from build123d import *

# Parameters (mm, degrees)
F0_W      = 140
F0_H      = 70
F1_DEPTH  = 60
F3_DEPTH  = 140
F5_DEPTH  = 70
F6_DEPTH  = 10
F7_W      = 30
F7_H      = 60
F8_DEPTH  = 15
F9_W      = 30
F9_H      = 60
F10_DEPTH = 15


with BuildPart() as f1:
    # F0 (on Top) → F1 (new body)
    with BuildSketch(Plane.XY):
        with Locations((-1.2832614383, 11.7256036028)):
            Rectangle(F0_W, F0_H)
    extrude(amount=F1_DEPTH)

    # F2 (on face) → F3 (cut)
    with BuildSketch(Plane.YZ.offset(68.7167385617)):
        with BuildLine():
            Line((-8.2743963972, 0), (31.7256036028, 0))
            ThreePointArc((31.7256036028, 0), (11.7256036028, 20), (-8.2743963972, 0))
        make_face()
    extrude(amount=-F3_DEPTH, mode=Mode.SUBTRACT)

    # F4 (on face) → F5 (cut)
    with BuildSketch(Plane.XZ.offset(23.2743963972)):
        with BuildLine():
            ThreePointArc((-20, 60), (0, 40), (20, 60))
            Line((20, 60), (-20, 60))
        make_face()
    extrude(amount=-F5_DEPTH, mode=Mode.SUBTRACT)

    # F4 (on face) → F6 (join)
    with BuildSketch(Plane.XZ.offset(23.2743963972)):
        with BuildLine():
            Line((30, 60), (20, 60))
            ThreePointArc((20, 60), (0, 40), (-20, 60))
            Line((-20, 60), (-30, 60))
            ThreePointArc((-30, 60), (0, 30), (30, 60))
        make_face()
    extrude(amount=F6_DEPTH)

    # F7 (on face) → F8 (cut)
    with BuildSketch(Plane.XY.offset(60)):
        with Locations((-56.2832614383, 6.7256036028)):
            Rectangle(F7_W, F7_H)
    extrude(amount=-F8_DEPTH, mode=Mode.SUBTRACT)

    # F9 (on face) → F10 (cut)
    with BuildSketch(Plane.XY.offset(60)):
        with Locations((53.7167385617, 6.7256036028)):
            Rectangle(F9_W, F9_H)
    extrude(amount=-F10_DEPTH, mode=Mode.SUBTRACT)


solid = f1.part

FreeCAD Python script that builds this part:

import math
import FreeCAD as App
import Part
import Sketcher
from FreeCAD import Vector

doc = App.newDocument("Part")
body = doc.addObject("PartDesign::Body", "Body")

# Sketch on XY plane
sketch1 = body.newObject("Sketcher::SketchObject", "Sketch")
sketch1.AttachmentSupport = (doc.getObject("XY_Plane"), [""])
sketch1.MapMode = "FlatFace"
sketch1.addGeometry(Part.LineSegment(Vector(-71, 47, 0), Vector(-71, -23, 0)), False)
sketch1.addGeometry(Part.LineSegment(Vector(-71, -23, 0), Vector(69, -23, 0)), False)
sketch1.addGeometry(Part.LineSegment(Vector(69, -23, 0), Vector(69, 47, 0)), False)
sketch1.addGeometry(Part.LineSegment(Vector(69, 47, 0), Vector(-71, 47, 0)), False)
sketch1.addConstraint(Sketcher.Constraint("Coincident", 0, 2, 1, 1))
sketch1.addConstraint(Sketcher.Constraint("Coincident", 1, 2, 2, 1))
sketch1.addConstraint(Sketcher.Constraint("Coincident", 2, 2, 3, 1))
sketch1.addConstraint(Sketcher.Constraint("Coincident", 3, 2, 0, 1))
sketch1.addConstraint(Sketcher.Constraint("Vertical", 0))
sketch1.addConstraint(Sketcher.Constraint("Horizontal", 1))
sketch1.addConstraint(Sketcher.Constraint("Vertical", 2))
sketch1.addConstraint(Sketcher.Constraint("Horizontal", 3))
sketch1.addConstraint(Sketcher.Constraint("DistanceX", 1, 1, 1, 2, 140.0))
sketch1.addConstraint(Sketcher.Constraint("DistanceY", 0, 2, 0, 1, 70.0))
sketch1.addConstraint(Sketcher.Constraint("DistanceX", 0, 2, -1, 1, 71.283261))
sketch1.addConstraint(Sketcher.Constraint("DistanceY", 0, 2, -1, 1, 23.274396))
pad1 = body.newObject("PartDesign::Pad", "Pad")
pad1.Profile = sketch1
pad1.Length = 60

# Sketch on YZ plane
sketch2 = body.newObject("Sketcher::SketchObject", "Sketch001")
sketch2.AttachmentSupport = (doc.getObject("YZ_Plane"), [""])
sketch2.MapMode = "FlatFace"
sketch2.AttachmentOffset = App.Placement(Vector(0, 0, 68.716739), App.Rotation())
sketch2.addGeometry(Part.LineSegment(Vector(-8, 0, 0), Vector(32, 0, 0)), False)
sketch2.addGeometry(Part.ArcOfCircle(Part.Circle(Vector(12, 0, 0), Vector(0, 0, 1), 20), math.radians(0), math.radians(180)), False)
sketch2.addConstraint(Sketcher.Constraint("Coincident", 0, 1, 1, 2))
sketch2.addConstraint(Sketcher.Constraint("Coincident", 1, 1, 0, 2))
sketch2.addConstraint(Sketcher.Constraint("Horizontal", 0))
sketch2.addConstraint(Sketcher.Constraint("PointOnObject", 1, 3, -1))
sketch2.addConstraint(Sketcher.Constraint("PointOnObject", 0, 1, -1))
sketch2.addConstraint(Sketcher.Constraint("Radius", 1, 20.0))
sketch2.addConstraint(Sketcher.Constraint("DistanceX", -1, 1, 1, 3, 11.725604))
pocket1 = body.newObject("PartDesign::Pocket", "Pocket")
pocket1.Profile = sketch2
pocket1.Length = 140

# Sketch on XZ plane
sketch3 = body.newObject("Sketcher::SketchObject", "Sketch002")
sketch3.AttachmentSupport = (doc.getObject("XZ_Plane"), [""])
sketch3.MapMode = "FlatFace"
sketch3.AttachmentOffset = App.Placement(Vector(0, 0, 23.274396), App.Rotation())
sketch3.addGeometry(Part.ArcOfCircle(Part.Circle(Vector(0, 60, 0), Vector(0, 0, 1), 20), math.radians(180), math.radians(360)), False)
sketch3.addGeometry(Part.LineSegment(Vector(20, 60, 0), Vector(-20, 60, 0)), False)
sketch3.addConstraint(Sketcher.Constraint("Coincident", 0, 1, 1, 2))
sketch3.addConstraint(Sketcher.Constraint("Coincident", 1, 1, 0, 2))
sketch3.addConstraint(Sketcher.Constraint("Horizontal", 1))
sketch3.addConstraint(Sketcher.Constraint("PointOnObject", 0, 3, -2))
sketch3.addConstraint(Sketcher.Constraint("Radius", 0, 20.0))
sketch3.addConstraint(Sketcher.Constraint("DistanceY", -1, 1, 0, 3, 60.0))
sketch3.addConstraint(Sketcher.Constraint("DistanceY", -1, 1, 0, 1, 60.0))
pocket2 = body.newObject("PartDesign::Pocket", "Pocket001")
pocket2.Profile = sketch3
pocket2.Length = 70

# Sketch on XZ plane
sketch4 = body.newObject("Sketcher::SketchObject", "Sketch003")
sketch4.AttachmentSupport = (doc.getObject("XZ_Plane"), [""])
sketch4.MapMode = "FlatFace"
sketch4.AttachmentOffset = App.Placement(Vector(0, 0, 23.274396), App.Rotation())
sketch4.addGeometry(Part.LineSegment(Vector(30, 60, 0), Vector(20, 60, 0)), False)
sketch4.addGeometry(Part.ArcOfCircle(Part.Circle(Vector(0, 60, 0), Vector(0, 0, 1), 20), math.radians(180), math.radians(360)), False)
sketch4.addGeometry(Part.LineSegment(Vector(-20, 60, 0), Vector(-30, 60, 0)), False)
sketch4.addGeometry(Part.ArcOfCircle(Part.Circle(Vector(0, 60, 0), Vector(0, 0, 1), 30), math.radians(180), math.radians(360)), False)
sketch4.addConstraint(Sketcher.Constraint("Coincident", 0, 2, 1, 2))
sketch4.addConstraint(Sketcher.Constraint("Coincident", 1, 1, 2, 1))
sketch4.addConstraint(Sketcher.Constraint("Coincident", 2, 2, 3, 1))
sketch4.addConstraint(Sketcher.Constraint("Coincident", 3, 2, 0, 1))
sketch4.addConstraint(Sketcher.Constraint("Horizontal", 0))
sketch4.addConstraint(Sketcher.Constraint("Horizontal", 2))
sketch4.addConstraint(Sketcher.Constraint("Coincident", 3, 3, 1, 3))
sketch4.addConstraint(Sketcher.Constraint("Symmetric", 0, 2, 1, 1, -2))
sketch4.addConstraint(Sketcher.Constraint("Horizontal", 3, 3, 0, 2))
sketch4.addConstraint(Sketcher.Constraint("Radius", 1, 20.0))
sketch4.addConstraint(Sketcher.Constraint("Radius", 3, 30.0))
sketch4.addConstraint(Sketcher.Constraint("DistanceY", -1, 1, 1, 3, 60.0))
pad2 = body.newObject("PartDesign::Pad", "Pad001")
pad2.Profile = sketch4
pad2.Length = 10

# Sketch on XY plane
sketch5 = body.newObject("Sketcher::SketchObject", "Sketch004")
sketch5.AttachmentSupport = (doc.getObject("XY_Plane"), [""])
sketch5.MapMode = "FlatFace"
sketch5.AttachmentOffset = App.Placement(Vector(0, 0, 60), App.Rotation())
sketch5.addGeometry(Part.LineSegment(Vector(-71, 37, 0), Vector(-71, -23, 0)), False)
sketch5.addGeometry(Part.LineSegment(Vector(-71, -23, 0), Vector(-41, -23, 0)), False)
sketch5.addGeometry(Part.LineSegment(Vector(-41, -23, 0), Vector(-41, 37, 0)), False)
sketch5.addGeometry(Part.LineSegment(Vector(-41, 37, 0), Vector(-71, 37, 0)), False)
sketch5.addConstraint(Sketcher.Constraint("Coincident", 0, 2, 1, 1))
sketch5.addConstraint(Sketcher.Constraint("Coincident", 1, 2, 2, 1))
sketch5.addConstraint(Sketcher.Constraint("Coincident", 2, 2, 3, 1))
sketch5.addConstraint(Sketcher.Constraint("Coincident", 3, 2, 0, 1))
sketch5.addConstraint(Sketcher.Constraint("Vertical", 0))
sketch5.addConstraint(Sketcher.Constraint("Horizontal", 1))
sketch5.addConstraint(Sketcher.Constraint("Vertical", 2))
sketch5.addConstraint(Sketcher.Constraint("Horizontal", 3))
sketch5.addConstraint(Sketcher.Constraint("DistanceX", 1, 1, 1, 2, 30.0))
sketch5.addConstraint(Sketcher.Constraint("DistanceY", 0, 2, 0, 1, 60.0))
sketch5.addConstraint(Sketcher.Constraint("DistanceX", 0, 2, -1, 1, 71.283261))
sketch5.addConstraint(Sketcher.Constraint("DistanceY", 0, 2, -1, 1, 23.274396))
pocket3 = body.newObject("PartDesign::Pocket", "Pocket002")
pocket3.Profile = sketch5
pocket3.Length = 15

# Sketch on XY plane
sketch6 = body.newObject("Sketcher::SketchObject", "Sketch005")
sketch6.AttachmentSupport = (doc.getObject("XY_Plane"), [""])
sketch6.MapMode = "FlatFace"
sketch6.AttachmentOffset = App.Placement(Vector(0, 0, 60), App.Rotation())
sketch6.addGeometry(Part.LineSegment(Vector(39, 37, 0), Vector(39, -23, 0)), False)
sketch6.addGeometry(Part.LineSegment(Vector(39, -23, 0), Vector(69, -23, 0)), False)
sketch6.addGeometry(Part.LineSegment(Vector(69, -23, 0), Vector(69, 37, 0)), False)
sketch6.addGeometry(Part.LineSegment(Vector(69, 37, 0), Vector(39, 37, 0)), False)
sketch6.addConstraint(Sketcher.Constraint("Coincident", 0, 2, 1, 1))
sketch6.addConstraint(Sketcher.Constraint("Coincident", 1, 2, 2, 1))
sketch6.addConstraint(Sketcher.Constraint("Coincident", 2, 2, 3, 1))
sketch6.addConstraint(Sketcher.Constraint("Coincident", 3, 2, 0, 1))
sketch6.addConstraint(Sketcher.Constraint("Vertical", 0))
sketch6.addConstraint(Sketcher.Constraint("Horizontal", 1))
sketch6.addConstraint(Sketcher.Constraint("Vertical", 2))
sketch6.addConstraint(Sketcher.Constraint("Horizontal", 3))
sketch6.addConstraint(Sketcher.Constraint("DistanceX", 1, 1, 1, 2, 30.0))
sketch6.addConstraint(Sketcher.Constraint("DistanceY", 0, 2, 0, 1, 60.0))
sketch6.addConstraint(Sketcher.Constraint("DistanceX", -1, 1, 0, 2, 38.716739))
sketch6.addConstraint(Sketcher.Constraint("DistanceY", 0, 2, -1, 1, 23.274396))
pocket4 = body.newObject("PartDesign::Pocket", "Pocket003")
pocket4.Profile = sketch6
pocket4.Length = 15

doc.recompute()
